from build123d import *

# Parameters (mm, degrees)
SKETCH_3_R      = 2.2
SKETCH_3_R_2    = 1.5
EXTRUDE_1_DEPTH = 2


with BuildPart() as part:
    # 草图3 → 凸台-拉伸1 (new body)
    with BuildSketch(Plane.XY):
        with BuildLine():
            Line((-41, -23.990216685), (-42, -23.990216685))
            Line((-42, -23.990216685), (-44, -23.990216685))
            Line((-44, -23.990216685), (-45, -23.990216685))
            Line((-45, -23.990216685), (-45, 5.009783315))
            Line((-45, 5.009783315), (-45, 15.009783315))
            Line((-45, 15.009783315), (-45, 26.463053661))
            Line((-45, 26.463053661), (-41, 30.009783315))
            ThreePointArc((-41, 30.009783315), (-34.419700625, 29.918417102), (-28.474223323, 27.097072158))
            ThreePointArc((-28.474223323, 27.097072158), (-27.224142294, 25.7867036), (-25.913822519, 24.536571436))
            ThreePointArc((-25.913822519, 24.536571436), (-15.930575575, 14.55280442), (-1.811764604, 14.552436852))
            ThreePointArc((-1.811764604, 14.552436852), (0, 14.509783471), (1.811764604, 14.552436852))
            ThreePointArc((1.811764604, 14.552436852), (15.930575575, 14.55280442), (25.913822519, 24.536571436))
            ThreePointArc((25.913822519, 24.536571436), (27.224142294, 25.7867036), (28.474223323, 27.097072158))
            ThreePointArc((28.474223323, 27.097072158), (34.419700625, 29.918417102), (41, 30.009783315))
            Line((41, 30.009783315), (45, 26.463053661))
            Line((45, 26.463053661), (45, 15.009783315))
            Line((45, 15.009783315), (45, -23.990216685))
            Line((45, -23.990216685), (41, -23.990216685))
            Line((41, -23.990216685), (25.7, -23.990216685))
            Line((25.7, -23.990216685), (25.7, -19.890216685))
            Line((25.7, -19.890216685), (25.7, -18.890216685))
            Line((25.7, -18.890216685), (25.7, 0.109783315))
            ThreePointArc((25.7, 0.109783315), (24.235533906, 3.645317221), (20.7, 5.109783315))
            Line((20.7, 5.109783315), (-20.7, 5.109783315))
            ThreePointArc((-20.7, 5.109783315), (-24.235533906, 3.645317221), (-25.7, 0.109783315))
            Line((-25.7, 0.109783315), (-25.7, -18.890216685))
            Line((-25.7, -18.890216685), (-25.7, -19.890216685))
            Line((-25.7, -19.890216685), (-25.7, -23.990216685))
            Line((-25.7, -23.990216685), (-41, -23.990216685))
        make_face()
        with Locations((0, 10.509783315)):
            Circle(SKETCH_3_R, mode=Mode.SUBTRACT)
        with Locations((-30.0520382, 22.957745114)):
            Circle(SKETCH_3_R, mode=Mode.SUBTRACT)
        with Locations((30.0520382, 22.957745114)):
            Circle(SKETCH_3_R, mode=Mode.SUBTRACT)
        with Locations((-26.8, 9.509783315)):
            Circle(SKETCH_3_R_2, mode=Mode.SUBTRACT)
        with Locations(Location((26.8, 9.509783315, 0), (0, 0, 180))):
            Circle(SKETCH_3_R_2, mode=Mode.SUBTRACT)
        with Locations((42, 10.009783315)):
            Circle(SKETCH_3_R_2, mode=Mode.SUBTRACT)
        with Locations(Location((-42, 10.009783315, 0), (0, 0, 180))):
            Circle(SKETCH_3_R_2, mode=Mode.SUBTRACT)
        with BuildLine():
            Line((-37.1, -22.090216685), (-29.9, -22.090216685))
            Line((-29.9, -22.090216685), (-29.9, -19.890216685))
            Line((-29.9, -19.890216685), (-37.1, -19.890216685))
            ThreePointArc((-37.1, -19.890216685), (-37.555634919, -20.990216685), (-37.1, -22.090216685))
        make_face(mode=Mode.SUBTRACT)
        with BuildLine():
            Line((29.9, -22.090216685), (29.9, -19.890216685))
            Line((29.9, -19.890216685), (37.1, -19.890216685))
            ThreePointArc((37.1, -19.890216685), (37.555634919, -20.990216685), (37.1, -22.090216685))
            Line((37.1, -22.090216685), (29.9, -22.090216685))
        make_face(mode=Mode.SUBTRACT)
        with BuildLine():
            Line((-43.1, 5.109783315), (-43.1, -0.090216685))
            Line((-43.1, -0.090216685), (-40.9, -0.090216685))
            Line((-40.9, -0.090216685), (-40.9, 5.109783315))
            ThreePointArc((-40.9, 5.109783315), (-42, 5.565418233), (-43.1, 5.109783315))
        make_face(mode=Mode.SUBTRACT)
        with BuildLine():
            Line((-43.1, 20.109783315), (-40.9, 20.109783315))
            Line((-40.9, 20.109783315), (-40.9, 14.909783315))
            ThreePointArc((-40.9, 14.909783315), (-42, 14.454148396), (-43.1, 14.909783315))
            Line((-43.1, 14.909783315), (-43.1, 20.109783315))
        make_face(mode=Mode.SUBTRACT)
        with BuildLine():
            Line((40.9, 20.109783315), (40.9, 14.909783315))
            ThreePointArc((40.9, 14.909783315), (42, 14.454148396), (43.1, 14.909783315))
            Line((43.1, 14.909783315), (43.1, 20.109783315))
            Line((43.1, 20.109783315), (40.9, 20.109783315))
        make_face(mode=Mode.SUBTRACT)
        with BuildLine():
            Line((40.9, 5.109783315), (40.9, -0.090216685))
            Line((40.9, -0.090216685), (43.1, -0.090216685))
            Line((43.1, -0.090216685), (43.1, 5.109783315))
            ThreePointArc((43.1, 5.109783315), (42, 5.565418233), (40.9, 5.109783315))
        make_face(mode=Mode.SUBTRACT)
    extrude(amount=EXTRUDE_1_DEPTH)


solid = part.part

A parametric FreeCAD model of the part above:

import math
import FreeCAD as App
import Part
import Sketcher
from FreeCAD import Vector
Q = App.Units.Quantity

doc = App.newDocument("Part")
params = doc.addObject("Spreadsheet::Sheet", "Params")
for row, (alias, value) in enumerate([
    ("sketch1_diameter", "3 mm"),
    ("sketch1_radius", "5 mm"),
    ("sketch1_diameter2", "4.4 mm"),
    ("sketch1_radius2", "38.5 mm"),
    ("sketch1_width", "19.3 mm"),
    ("pad1_length", "2 mm"),
], start=1):
    params.set(f"A{row}", alias)
    params.set(f"B{row}", "=" + value)
    params.setAlias(f"B{row}", alias)

body = doc.addObject("PartDesign::Body", "Body")

# Sketch on XY plane
sketch1 = body.newObject("Sketcher::SketchObject", "Sketch")
sketch1.AttachmentSupport = (doc.getObject("XY_Plane"), [""])
sketch1.MapMode = "FlatFace"
sketch1.addGeometry([
    Part.LineSegment(Vector(-45, 26.5, 0), Vector(-45, -24, 0)),  # 0
    Part.LineSegment(Vector(-45, -24, 0), Vector(-25.7, -24, 0)),  # 1
    Part.LineSegment(Vector(-25.7, -24, 0), Vector(-25.7, 0.1, 0)),  # 2
    Part.ArcOfCircle(Part.Circle(Vector(-20.7, 0.1, 0), Vector(0, 0, 1), 5), math.radians(90), math.radians(180)),  # 3
    Part.LineSegment(Vector(-20.7, 5.1, 0), Vector(20.7, 5.1, 0)),  # 4
    Part.ArcOfCircle(Part.Circle(Vector(20.7, 0.1, 0), Vector(0, 0, 1), 5), math.radians(0), math.radians(90)),  # 5
    Part.LineSegment(Vector(25.7, 0.1, 0), Vector(25.7, -24, 0)),  # 6
    Part.LineSegment(Vector(25.7, -24, 0), Vector(45, -24, 0)),  # 7
    Part.LineSegment(Vector(45, -24, 0), Vector(45, 26.5, 0)),  # 8
    Part.LineSegment(Vector(45, 26.5, 0), Vector(41, 30, 0)),  # 9
    Part.ArcOfCircle(Part.Circle(Vector(37.9, 14.9, 0), Vector(0, 0, 1), 15.5), math.radians(79), math.radians(128)),  # 10
    Part.ArcOfCircle(Part.Circle(Vector(0, 53, 0), Vector(0, 0, 1), 38.5), math.radians(-47.69), math.radians(-42.3)),  # 11
    Part.ArcOfCircle(Part.Circle(Vector(8.9, 31.6, 0), Vector(0, 0, 1), 18.4), math.radians(-112), math.radians(-22)),  # 12
    Part.ArcOfCircle(Part.Circle(Vector(0, 53, 0), Vector(0, 0, 1), 38.5), math.radians(-92.7), math.radians(-87.3)),  # 13
    Part.ArcOfCircle(Part.Circle(Vector(-8.9, 31.6, 0), Vector(0, 0, 1), 18.4), math.radians(-158), math.radians(-68)),  # 14
    Part.ArcOfCircle(Part.Circle(Vector(0, 53, 0), Vector(0, 0, 1), 38.5), math.radians(-137.7), math.radians(-132.31)),  # 15
    Part.ArcOfCircle(Part.Circle(Vector(-37.9, 14.9, 0), Vector(0, 0, 1), 15.5), math.radians(52), math.radians(101)),  # 16
    Part.LineSegment(Vector(-41, 30, 0), Vector(-45, 26.5, 0)),  # 17
    Part.LineSegment(Vector(29.9, -22.1, 0), Vector(29.9, -19.9, 0)),  # 18
    Part.LineSegment(Vector(29.9, -19.9, 0), Vector(37.1, -19.9, 0)),  # 19
    Part.ArcOfCircle(Part.Circle(Vector(36, -21, 0), Vector(0, 0, 1), 1.6), math.radians(-45), math.radians(45)),  # 20
    Part.LineSegment(Vector(37.1, -22.1, 0), Vector(29.9, -22.1, 0)),  # 21
    Part.ArcOfCircle(Part.Circle(Vector(-36, -21, 0), Vector(0, 0, 1), 1.6), math.radians(135), math.radians(225)),  # 22
    Part.LineSegment(Vector(-37.1, -19.9, 0), Vector(-29.9, -19.9, 0)),  # 23
    Part.LineSegment(Vector(-29.9, -19.9, 0), Vector(-29.9, -22.1, 0)),  # 24
    Part.LineSegment(Vector(-29.9, -22.1, 0), Vector(-37.1, -22.1, 0)),  # 25
    Part.ArcOfCircle(Part.Circle(Vector(42, 4, 0), Vector(0, 0, 1), 1.6), math.radians(45), math.radians(135)),  # 26
    Part.LineSegment(Vector(43.1, 5.1, 0), Vector(43.1, -0.1, 0)),  # 27
    Part.LineSegment(Vector(43.1, -0.1, 0), Vector(40.9, -0.1, 0)),  # 28
    Part.LineSegment(Vector(40.9, -0.1, 0), Vector(40.9, 5.1, 0)),  # 29
    Part.Circle(Vector(42, 10, 0), Vector(0, 0, 1), 1.5),  # 30
    Part.Circle(Vector(26.8, 9.5, 0), Vector(0, 0, 1), 1.5),  # 31
    Part.LineSegment(Vector(40.9, 20.1, 0), Vector(43.1, 20.1, 0)),  # 32
    Part.LineSegment(Vector(43.1, 20.1, 0), Vector(43.1, 14.9, 0)),  # 33
    Part.ArcOfCircle(Part.Circle(Vector(42, 16, 0), Vector(0, 0, 1), 1.6), math.radians(-135), math.radians(-45)),  # 34
    Part.LineSegment(Vector(40.9, 14.9, 0), Vector(40.9, 20.1, 0)),  # 35
    Part.Circle(Vector(30.1, 23, 0), Vector(0, 0, 1), 2.2),  # 36
    Part.Circle(Vector(0, 10.5, 0), Vector(0, 0, 1), 2.2),  # 37
    Part.ArcOfCircle(Part.Circle(Vector(-42, 4, 0), Vector(0, 0, 1), 1.6), math.radians(45), math.radians(135)),  # 38
    Part.LineSegment(Vector(-40.9, 5.1, 0), Vector(-40.9, -0.1, 0)),  # 39
    Part.LineSegment(Vector(-40.9, -0.1, 0), Vector(-43.1, -0.1, 0)),  # 40
    Part.LineSegment(Vector(-43.1, -0.1, 0), Vector(-43.1, 5.1, 0)),  # 41
    Part.Circle(Vector(-26.8, 9.5, 0), Vector(0, 0, 1), 1.5),  # 42
    Part.Circle(Vector(-42, 10, 0), Vector(0, 0, 1), 1.5),  # 43
    Part.LineSegment(Vector(-43.1, 20.1, 0), Vector(-40.9, 20.1, 0)),  # 44
    Part.LineSegment(Vector(-40.9, 20.1, 0), Vector(-40.9, 14.9, 0)),  # 45
    Part.ArcOfCircle(Part.Circle(Vector(-42, 16, 0), Vector(0, 0, 1), 1.6), math.radians(-135), math.radians(-45)),  # 46
    Part.LineSegment(Vector(-43.1, 14.9, 0), Vector(-43.1, 20.1, 0)),  # 47
    Part.Circle(Vector(-30.1, 23, 0), Vector(0, 0, 1), 2.2),  # 48
], False)
sketch1.addConstraint([
    Sketcher.Constraint("Coincident", 0, 2, 1, 1),
    Sketcher.Constraint("Coincident", 1, 2, 2, 1),
    Sketcher.Constraint("Tangent", 2, 2, 3, 2),
    Sketcher.Constraint("Tangent", 3, 1, 4, 1),
    Sketcher.Constraint("Tangent", 4, 2, 5, 2),
    Sketcher.Constraint("Tangent", 5, 1, 6, 1),
    Sketcher.Constraint("Coincident", 6, 2, 7, 1),
    Sketcher.Constraint("Coincident", 7, 2, 8, 1),
    Sketcher.Constraint("Coincident", 8, 2, 9, 1),
    Sketcher.Constraint("Coincident", 9, 2, 10, 1),
    Sketcher.Constraint("Coincident", 10, 2, 11, 2),
    Sketcher.Constraint("Coincident", 11, 1, 12, 2),
    Sketcher.Constraint("Coincident", 12, 1, 13, 2),
    Sketcher.Constraint("Coincident", 13, 1, 14, 2),
    Sketcher.Constraint("Coincident", 14, 1, 15, 2),
    Sketcher.Constraint("Coincident", 15, 1, 16, 1),
    Sketcher.Constraint("Coincident", 16, 2, 17, 1),
    Sketcher.Constraint("Coincident", 17, 2, 0, 1),
    Sketcher.Constraint("Coincident", 18, 2, 19, 1),
    Sketcher.Constraint("Coincident", 19, 2, 20, 2),
    Sketcher.Constraint("Coincident", 20, 1, 21, 1),
    Sketcher.Constraint("Coincident", 21, 2, 18, 1),
    Sketcher.Constraint("Coincident", 22, 1, 23, 1),
    Sketcher.Constraint("Coincident", 23, 2, 24, 1),
    Sketcher.Constraint("Coincident", 24, 2, 25, 1),
    Sketcher.Constraint("Coincident", 25, 2, 22, 2),
    Sketcher.Constraint("Coincident", 26, 1, 27, 1),
    Sketcher.Constraint("Coincident", 27, 2, 28, 1),
    Sketcher.Constraint("Coincident", 28, 2, 29, 1),
    Sketcher.Constraint("Coincident", 29, 2, 26, 2),
    Sketcher.Constraint("Coincident", 32, 2, 33, 1),
    Sketcher.Constraint("Coincident", 33, 2, 34, 2),
    Sketcher.Constraint("Coincident", 34, 1, 35, 1),
    Sketcher.Constraint("Coincident", 35, 2, 32, 1),
    Sketcher.Constraint("Coincident", 38, 1, 39, 1),
    Sketcher.Constraint("Coincident", 39, 2, 40, 1),
    Sketcher.Constraint("Coincident", 40, 2, 41, 1),
    Sketcher.Constraint("Coincident", 41, 2, 38, 2),
    Sketcher.Constraint("Coincident", 44, 2, 45, 1),
    Sketcher.Constraint("Coincident", 45, 2, 46, 2),
    Sketcher.Constraint("Coincident", 46, 1, 47, 1),
    Sketcher.Constraint("Coincident", 47, 2, 44, 1),
    Sketcher.Constraint("Vertical", 0),
    Sketcher.Constraint("Horizontal", 1),
    Sketcher.Constraint("Vertical", 2),
    Sketcher.Constraint("Horizontal", 4),
    Sketcher.Constraint("Vertical", 6),
    Sketcher.Constraint("Horizontal", 7),
    Sketcher.Constraint("Vertical", 8),
    Sketcher.Constraint("Vertical", 18),
    Sketcher.Constraint("Horizontal", 19),
    Sketcher.Constraint("Horizontal", 21),
    Sketcher.Constraint("Horizontal", 23),
    Sketcher.Constraint("Vertical", 24),
    Sketcher.Constraint("Horizontal", 25),
    Sketcher.Constraint("Vertical", 27),
    Sketcher.Constraint("Horizontal", 28),
    Sketcher.Constraint("Vertical", 29),
    Sketcher.Constraint("Horizontal", 32),
    Sketcher.Constraint("Vertical", 33),
    Sketcher.Constraint("Vertical", 35),
    Sketcher.Constraint("Vertical", 39),
    Sketcher.Constraint("Horizontal", 40),
    Sketcher.Constraint("Vertical", 41),
    Sketcher.Constraint("Horizontal", 44),
    Sketcher.Constraint("Vertical", 45),
    Sketcher.Constraint("Vertical", 47),
    Sketcher.Constraint("Coincident", 13, 3, 11, 3),
    Sketcher.Constraint("Coincident", 15, 3, 11, 3),
    Sketcher.Constraint("Equal", 3, 5),
    Sketcher.Constraint("Equal", 11, 13),
    Sketcher.Constraint("Equal", 12, 14),
    Sketcher.Constraint("Equal", 13, 15),
    Sketcher.Constraint("Equal", 10, 16),
    Sketcher.Constraint("Equal", 20, 22),
    Sketcher.Constraint("Equal", 22, 26),
    Sketcher.Constraint("Equal", 30, 31),
    Sketcher.Constraint("Equal", 26, 34),
    Sketcher.Constraint("Equal", 36, 37),
    Sketcher.Constraint("Equal", 34, 38),
    Sketcher.Constraint("Equal", 31, 42),
    Sketcher.Constraint("Equal", 42, 43),
    Sketcher.Constraint("Equal", 38, 46),
    Sketcher.Constraint("Equal", 37, 48),
    Sketcher.Constraint("Symmetric", 12, 3, 14, 3, -2),
    Sketcher.Constraint("Symmetric", 10, 3, 16, 3, -2),
    Sketcher.Constraint("Symmetric", 20, 3, 22, 3, -2),
    Sketcher.Constraint("Symmetric", 26, 3, 38, 3, -2),
    Sketcher.Constraint("Symmetric", 31, 3, 42, 3, -2),
    Sketcher.Constraint("Symmetric", 30, 3, 43, 3, -2),
    Sketcher.Constraint("Symmetric", 34, 3, 46, 3, -2),
    Sketcher.Constraint("Symmetric", 36, 3, 48, 3, -2),
    Sketcher.Constraint("Symmetric", 1, 2, 6, 2, -2),
    Sketcher.Constraint("Symmetric", 8, 2, 17, 2, -2),
    Sketcher.Constraint("Symmetric", 18, 2, 23, 2, -2),
    Sketcher.Constraint("Symmetric", 28, 2, 39, 2, -2),
    Sketcher.Constraint("Symmetric", 35, 2, 44, 2, -2),
    Sketcher.Constraint("PointOnObject", 11, 3, -2),
    Sketcher.Constraint("PointOnObject", 37, 3, -2),
    Sketcher.Constraint("Horizontal", 9, 2, 16, 2),
    Sketcher.Constraint("Horizontal", 21, 2, 24, 2),
    Sketcher.Constraint("Horizontal", 4, 2, 26, 1),
    Sketcher.Constraint("Horizontal", 26, 1, 29, 2),
    Sketcher.Constraint("Horizontal", 33, 2, 34, 1),
    Sketcher.Constraint("Horizontal", 38, 1, 41, 2),
    Sketcher.Constraint("Horizontal", 45, 2, 46, 1),
    Sketcher.Constraint("Vertical", 26, 3, 30, 3),
    Sketcher.Constraint("Vertical", 30, 3, 34, 3),
    Sketcher.Constraint("Vertical", 19, 2, 20, 1),
    Sketcher.Constraint("Vertical", 27, 2, 32, 2),
    Sketcher.Constraint("Equal", 44, 18),
    Sketcher.Constraint("Equal", 29, 33),
    Sketcher.Constraint("Diameter", 30, Q("3 mm")),
    Sketcher.Constraint("Radius", 3, Q("5 mm")),
    Sketcher.Constraint("Diameter", 36, Q("4.4 mm")),
    Sketcher.Constraint("Radius", 11, Q("38.5 mm")),
    Sketcher.Constraint("DistanceX", 1, 1, 1, 2, Q("19.3 mm")),
    Sketcher.Constraint("DistanceX", 4, 1, 4, 2, Q("41.4 mm")),
    Sketcher.Constraint("DistanceX", 19, 1, 19, 2, Q("7.2 mm")),
    Sketcher.Constraint("DistanceX", 28, 2, 28, 1, Q("2.2 mm")),
    Sketcher.Constraint("DistanceY", 2, 1, 2, 2, Q("24.1 mm")),
    Sketcher.Constraint("DistanceY", 27, 2, 27, 1, Q("5.2 mm")),
    Sketcher.Constraint("DistanceX", -1, 1, 20, 3, Q("36 mm")),
    Sketcher.Constraint("DistanceX", -1, 1, 26, 3, Q("42 mm")),
    Sketcher.Constraint("DistanceX", -1, 1, 9, 2, Q("41 mm")),
    Sketcher.Constraint("DistanceX", -1, 1, 31, 3, Q("26.8 mm")),
    Sketcher.Constraint("DistanceX", -1, 1, 18, 2, Q("29.9 mm")),
    Sketcher.Constraint("Radius", 10, Q("15.451843 mm")),
    Sketcher.Constraint("Radius", 12, Q("18.447115 mm")),
    Sketcher.Constraint("DistanceY", 0, 2, 0, 1, Q("50.45327 mm")),
    Sketcher.Constraint("Distance", 9, Q("5.34596 mm")),
    Sketcher.Constraint("DistanceY", -1, 1, 10, 3, Q("14.868129 mm")),
    Sketcher.Constraint("DistanceX", -1, 1, 36, 3, Q("30.052038 mm")),
    Sketcher.Constraint("DistanceY", -1, 1, 11, 1, Q("24.536571 mm")),
    Sketcher.Constraint("DistanceY", -1, 1, 3, 3, Q("0.109783 mm")),
    Sketcher.Constraint("DistanceY", -1, 1, 11, 3, Q("53.009783 mm")),
    Sketcher.Constraint("DistanceX", -1, 1, 12, 3, Q("8.870726 mm")),
    Sketcher.Constraint("DistanceY", 20, 3, -1, 1, Q("20.990217 mm")),
    Sketcher.Constraint("DistanceY", -1, 1, 30, 3, Q("10.009783 mm")),
    Sketcher.Constraint("DistanceY", -1, 1, 31, 3, Q("9.509783 mm")),
    Sketcher.Constraint("DistanceY", -1, 1, 34, 3, Q("16.009783 mm")),
    Sketcher.Constraint("DistanceY", -1, 1, 36, 3, Q("22.957745 mm")),
    Sketcher.Constraint("DistanceY", -1, 1, 37, 3, Q("10.509783 mm")),
])
sketch1.setExpression("Constraints[112]", "Params.sketch1_diameter")
sketch1.setExpression("Constraints[113]", "Params.sketch1_radius")
sketch1.setExpression("Constraints[114]", "Params.sketch1_diameter2")
sketch1.setExpression("Constraints[115]", "Params.sketch1_radius2")
sketch1.setExpression("Constraints[116]", "Params.sketch1_width")
pad1 = body.newObject("PartDesign::Pad", "Pad")
pad1.Profile = sketch1
pad1.setExpression("Length", "Params.pad1_length")

doc.recompute()
